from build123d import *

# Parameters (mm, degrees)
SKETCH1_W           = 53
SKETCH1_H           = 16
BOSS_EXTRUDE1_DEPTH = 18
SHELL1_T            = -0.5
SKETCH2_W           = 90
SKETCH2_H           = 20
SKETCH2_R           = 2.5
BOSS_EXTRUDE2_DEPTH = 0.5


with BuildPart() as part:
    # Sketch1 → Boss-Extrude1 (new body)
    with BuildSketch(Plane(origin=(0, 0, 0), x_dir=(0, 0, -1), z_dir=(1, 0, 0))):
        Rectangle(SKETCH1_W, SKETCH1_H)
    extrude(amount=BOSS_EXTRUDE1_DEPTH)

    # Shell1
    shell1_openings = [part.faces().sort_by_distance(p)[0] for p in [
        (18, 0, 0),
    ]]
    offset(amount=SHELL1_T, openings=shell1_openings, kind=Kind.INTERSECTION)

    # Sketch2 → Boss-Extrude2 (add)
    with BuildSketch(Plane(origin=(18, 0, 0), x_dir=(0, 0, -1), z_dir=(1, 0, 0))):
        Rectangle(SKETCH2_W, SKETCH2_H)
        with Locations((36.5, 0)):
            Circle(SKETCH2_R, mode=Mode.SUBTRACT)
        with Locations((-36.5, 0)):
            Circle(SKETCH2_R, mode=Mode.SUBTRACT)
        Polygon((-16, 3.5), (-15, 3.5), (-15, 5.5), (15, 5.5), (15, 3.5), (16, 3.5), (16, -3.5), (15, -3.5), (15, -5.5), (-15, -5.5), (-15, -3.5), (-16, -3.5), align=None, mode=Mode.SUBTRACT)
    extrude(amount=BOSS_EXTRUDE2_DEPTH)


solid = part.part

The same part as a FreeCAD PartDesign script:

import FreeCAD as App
import Part
import Sketcher
from FreeCAD import Vector


def faces_at(feature, points):
    """Names of the faces that lie closest to the given points."""
    faces = feature.Shape.Faces
    near = lambda p: min(range(len(faces)), key=lambda i: faces[i].distToShape(Part.Vertex(*p))[0])
    return sorted({f"Face{near(p) + 1}" for p in points})

doc = App.newDocument("Part")
body = doc.addObject("PartDesign::Body", "Body")

# Sketch on YZ plane
sketch1 = body.newObject("Sketcher::SketchObject", "Sketch")
sketch1.AttachmentSupport = (doc.getObject("YZ_Plane"), [""])
sketch1.MapMode = "FlatFace"
sketch1.addGeometry(Part.LineSegment(Vector(8, 26.5, 0), Vector(-8, 26.5, 0)), False)
sketch1.addGeometry(Part.LineSegment(Vector(-8, 26.5, 0), Vector(-8, -26.5, 0)), False)
sketch1.addGeometry(Part.LineSegment(Vector(-8, -26.5, 0), Vector(8, -26.5, 0)), False)
sketch1.addGeometry(Part.LineSegment(Vector(8, -26.5, 0), Vector(8, 26.5, 0)), False)
sketch1.addConstraint(Sketcher.Constraint("Coincident", 0, 2, 1, 1))
sketch1.addConstraint(Sketcher.Constraint("Coincident", 1, 2, 2, 1))
sketch1.addConstraint(Sketcher.Constraint("Coincident", 2, 2, 3, 1))
sketch1.addConstraint(Sketcher.Constraint("Coincident", 3, 2, 0, 1))
sketch1.addConstraint(Sketcher.Constraint("Horizontal", 0))
sketch1.addConstraint(Sketcher.Constraint("Vertical", 1))
sketch1.addConstraint(Sketcher.Constraint("Horizontal", 2))
sketch1.addConstraint(Sketcher.Constraint("Vertical", 3))
sketch1.addConstraint(Sketcher.Constraint("Symmetric", 0, 2, 2, 2, -1, 1))
sketch1.addConstraint(Sketcher.Constraint("DistanceX", 0, 2, 0, 1, 16.0))
sketch1.addConstraint(Sketcher.Constraint("DistanceY", 1, 2, 1, 1, 53.0))
pad1 = body.newObject("PartDesign::Pad", "Pad")
pad1.Profile = sketch1
pad1.Length = 18
doc.recompute()

thickness = body.newObject("PartDesign::Thickness", "Thickness")
thickness.Base = (pad1, faces_at(pad1, [(18, 0, 0)]))
thickness.Value = 0.5
thickness.Reversed = True
thickness.Join = "Intersection"

# Sketch on YZ plane
sketch2 = body.newObject("Sketcher::SketchObject", "Sketch001")
sketch2.AttachmentSupport = (doc.getObject("YZ_Plane"), [""])
sketch2.MapMode = "FlatFace"
sketch2.AttachmentOffset = App.Placement(Vector(0, 0, 18), App.Rotation())
sketch2.addGeometry(Part.LineSegment(Vector(10, 45, 0), Vector(-10, 45, 0)), False)
sketch2.addGeometry(Part.LineSegment(Vector(-10, 45, 0), Vector(-10, -45, 0)), False)
sketch2.addGeometry(Part.LineSegment(Vector(-10, -45, 0), Vector(10, -45, 0)), False)
sketch2.addGeometry(Part.LineSegment(Vector(10, -45, 0), Vector(10, 45, 0)), False)
sketch2.addGeometry(Part.Circle(Vector(0, 36.5, 0), Vector(0, 0, 1), 2.5), False)
sketch2.addGeometry(Part.LineSegment(Vector(-3.5, 16, 0), Vector(3.5, 16, 0)), False)
sketch2.addGeometry(Part.LineSegment(Vector(3.5, 16, 0), Vector(3.5, 15, 0)), False)
sketch2.addGeometry(Part.LineSegment(Vector(3.5, 15, 0), Vector(5.5, 15, 0)), False)
sketch2.addGeometry(Part.LineSegment(Vector(5.5, 15, 0), Vector(5.5, -15, 0)), False)
sketch2.addGeometry(Part.LineSegment(Vector(5.5, -15, 0), Vector(3.5, -15, 0)), False)
sketch2.addGeometry(Part.LineSegment(Vector(3.5, -15, 0), Vector(3.5, -16, 0)), False)
sketch2.addGeometry(Part.LineSegment(Vector(3.5, -16, 0), Vector(-3.5, -16, 0)), False)
sketch2.addGeometry(Part.LineSegment(Vector(-3.5, -16, 0), Vector(-3.5, -15, 0)), False)
sketch2.addGeometry(Part.LineSegment(Vector(-3.5, -15, 0), Vector(-5.5, -15, 0)), False)
sketch2.addGeometry(Part.LineSegment(Vector(-5.5, -15, 0), Vector(-5.5, 15, 0)), False)
sketch2.addGeometry(Part.LineSegment(Vector(-5.5, 15, 0), Vector(-3.5, 15, 0)), False)
sketch2.addGeometry(Part.LineSegment(Vector(-3.5, 15, 0), Vector(-3.5, 16, 0)), False)
sketch2.addGeometry(Part.Circle(Vector(0, -36.5, 0), Vector(0, 0, 1), 2.5), False)
sketch2.addConstraint(Sketcher.Constraint("Coincident", 0, 2, 1, 1))
sketch2.addConstraint(Sketcher.Constraint("Coincident", 1, 2, 2, 1))
sketch2.addConstraint(Sketcher.Constraint("Coincident", 2, 2, 3, 1))
sketch2.addConstraint(Sketcher.Constraint("Coincident", 3, 2, 0, 1))
sketch2.addConstraint(Sketcher.Constraint("Coincident", 5, 2, 6, 1))
sketch2.addConstraint(Sketcher.Constraint("Coincident", 6, 2, 7, 1))
sketch2.addConstraint(Sketcher.Constraint("Coincident", 7, 2, 8, 1))
sketch2.addConstraint(Sketcher.Constraint("Coincident", 8, 2, 9, 1))
sketch2.addConstraint(Sketcher.Constraint("Coincident", 9, 2, 10, 1))
sketch2.addConstraint(Sketcher.Constraint("Coincident", 10, 2, 11, 1))
sketch2.addConstraint(Sketcher.Constraint("Coincident", 11, 2, 12, 1))
sketch2.addConstraint(Sketcher.Constraint("Coincident", 12, 2, 13, 1))
sketch2.addConstraint(Sketcher.Constraint("Coincident", 13, 2, 14, 1))
sketch2.addConstraint(Sketcher.Constraint("Coincident", 14, 2, 15, 1))
sketch2.addConstraint(Sketcher.Constraint("Coincident", 15, 2, 16, 1))
sketch2.addConstraint(Sketcher.Constraint("Coincident", 16, 2, 5, 1))
sketch2.addConstraint(Sketcher.Constraint("Horizontal", 0))
sketch2.addConstraint(Sketcher.Constraint("Vertical", 1))
sketch2.addConstraint(Sketcher.Constraint("Horizontal", 2))
sketch2.addConstraint(Sketcher.Constraint("Vertical", 3))
sketch2.addConstraint(Sketcher.Constraint("Horizontal", 5))
sketch2.addConstraint(Sketcher.Constraint("Vertical", 6))
sketch2.addConstraint(Sketcher.Constraint("Horizontal", 7))
sketch2.addConstraint(Sketcher.Constraint("Vertical", 8))
sketch2.addConstraint(Sketcher.Constraint("Horizontal", 9))
sketch2.addConstraint(Sketcher.Constraint("Vertical", 10))
sketch2.addConstraint(Sketcher.Constraint("Horizontal", 11))
sketch2.addConstraint(Sketcher.Constraint("Vertical", 12))
sketch2.addConstraint(Sketcher.Constraint("Horizontal", 13))
sketch2.addConstraint(Sketcher.Constraint("Vertical", 14))
sketch2.addConstraint(Sketcher.Constraint("Horizontal", 15))
sketch2.addConstraint(Sketcher.Constraint("Vertical", 16))
sketch2.addConstraint(Sketcher.Constraint("Equal", 4, 17))
sketch2.addConstraint(Sketcher.Constraint("Symmetric", 4, 3, 17, 3, -1, 1))
sketch2.addConstraint(Sketcher.Constraint("Symmetric", 0, 2, 2, 2, -1, 1))
sketch2.addConstraint(Sketcher.Constraint("Symmetric", 5, 2, 11, 2, -1, 1))
sketch2.addConstraint(Sketcher.Constraint("Symmetric", 7, 2, 13, 2, -1, 1))
sketch2.addConstraint(Sketcher.Constraint("Symmetric", 9, 2, 15, 2, -1, 1))
sketch2.addConstraint(Sketcher.Constraint("Symmetric", 9, 2, 12, 2, -2))
sketch2.addConstraint(Sketcher.Constraint("PointOnObject", 4, 3, -2))
sketch2.addConstraint(Sketcher.Constraint("Diameter", 4, 5.0))
sketch2.addConstraint(Sketcher.Constraint("DistanceX", 0, 2, 0, 1, 20.0))
sketch2.addConstraint(Sketcher.Constraint("DistanceX", 5, 1, 5, 2, 7.0))
sketch2.addConstraint(Sketcher.Constraint("DistanceX", 7, 1, 7, 2, 2.0))
sketch2.addConstraint(Sketcher.Constraint("DistanceY", 1, 2, 1, 1, 90.0))
sketch2.addConstraint(Sketcher.Constraint("DistanceY", 6, 2, 6, 1, 1.0))
sketch2.addConstraint(Sketcher.Constraint("DistanceY", 8, 2, 8, 1, 30.0))
sketch2.addConstraint(Sketcher.Constraint("DistanceY", 17, 3, 4, 3, 73.0))
pad2 = body.newObject("PartDesign::Pad", "Pad001")
pad2.Profile = sketch2
pad2.Length = 0.5

doc.recompute()
